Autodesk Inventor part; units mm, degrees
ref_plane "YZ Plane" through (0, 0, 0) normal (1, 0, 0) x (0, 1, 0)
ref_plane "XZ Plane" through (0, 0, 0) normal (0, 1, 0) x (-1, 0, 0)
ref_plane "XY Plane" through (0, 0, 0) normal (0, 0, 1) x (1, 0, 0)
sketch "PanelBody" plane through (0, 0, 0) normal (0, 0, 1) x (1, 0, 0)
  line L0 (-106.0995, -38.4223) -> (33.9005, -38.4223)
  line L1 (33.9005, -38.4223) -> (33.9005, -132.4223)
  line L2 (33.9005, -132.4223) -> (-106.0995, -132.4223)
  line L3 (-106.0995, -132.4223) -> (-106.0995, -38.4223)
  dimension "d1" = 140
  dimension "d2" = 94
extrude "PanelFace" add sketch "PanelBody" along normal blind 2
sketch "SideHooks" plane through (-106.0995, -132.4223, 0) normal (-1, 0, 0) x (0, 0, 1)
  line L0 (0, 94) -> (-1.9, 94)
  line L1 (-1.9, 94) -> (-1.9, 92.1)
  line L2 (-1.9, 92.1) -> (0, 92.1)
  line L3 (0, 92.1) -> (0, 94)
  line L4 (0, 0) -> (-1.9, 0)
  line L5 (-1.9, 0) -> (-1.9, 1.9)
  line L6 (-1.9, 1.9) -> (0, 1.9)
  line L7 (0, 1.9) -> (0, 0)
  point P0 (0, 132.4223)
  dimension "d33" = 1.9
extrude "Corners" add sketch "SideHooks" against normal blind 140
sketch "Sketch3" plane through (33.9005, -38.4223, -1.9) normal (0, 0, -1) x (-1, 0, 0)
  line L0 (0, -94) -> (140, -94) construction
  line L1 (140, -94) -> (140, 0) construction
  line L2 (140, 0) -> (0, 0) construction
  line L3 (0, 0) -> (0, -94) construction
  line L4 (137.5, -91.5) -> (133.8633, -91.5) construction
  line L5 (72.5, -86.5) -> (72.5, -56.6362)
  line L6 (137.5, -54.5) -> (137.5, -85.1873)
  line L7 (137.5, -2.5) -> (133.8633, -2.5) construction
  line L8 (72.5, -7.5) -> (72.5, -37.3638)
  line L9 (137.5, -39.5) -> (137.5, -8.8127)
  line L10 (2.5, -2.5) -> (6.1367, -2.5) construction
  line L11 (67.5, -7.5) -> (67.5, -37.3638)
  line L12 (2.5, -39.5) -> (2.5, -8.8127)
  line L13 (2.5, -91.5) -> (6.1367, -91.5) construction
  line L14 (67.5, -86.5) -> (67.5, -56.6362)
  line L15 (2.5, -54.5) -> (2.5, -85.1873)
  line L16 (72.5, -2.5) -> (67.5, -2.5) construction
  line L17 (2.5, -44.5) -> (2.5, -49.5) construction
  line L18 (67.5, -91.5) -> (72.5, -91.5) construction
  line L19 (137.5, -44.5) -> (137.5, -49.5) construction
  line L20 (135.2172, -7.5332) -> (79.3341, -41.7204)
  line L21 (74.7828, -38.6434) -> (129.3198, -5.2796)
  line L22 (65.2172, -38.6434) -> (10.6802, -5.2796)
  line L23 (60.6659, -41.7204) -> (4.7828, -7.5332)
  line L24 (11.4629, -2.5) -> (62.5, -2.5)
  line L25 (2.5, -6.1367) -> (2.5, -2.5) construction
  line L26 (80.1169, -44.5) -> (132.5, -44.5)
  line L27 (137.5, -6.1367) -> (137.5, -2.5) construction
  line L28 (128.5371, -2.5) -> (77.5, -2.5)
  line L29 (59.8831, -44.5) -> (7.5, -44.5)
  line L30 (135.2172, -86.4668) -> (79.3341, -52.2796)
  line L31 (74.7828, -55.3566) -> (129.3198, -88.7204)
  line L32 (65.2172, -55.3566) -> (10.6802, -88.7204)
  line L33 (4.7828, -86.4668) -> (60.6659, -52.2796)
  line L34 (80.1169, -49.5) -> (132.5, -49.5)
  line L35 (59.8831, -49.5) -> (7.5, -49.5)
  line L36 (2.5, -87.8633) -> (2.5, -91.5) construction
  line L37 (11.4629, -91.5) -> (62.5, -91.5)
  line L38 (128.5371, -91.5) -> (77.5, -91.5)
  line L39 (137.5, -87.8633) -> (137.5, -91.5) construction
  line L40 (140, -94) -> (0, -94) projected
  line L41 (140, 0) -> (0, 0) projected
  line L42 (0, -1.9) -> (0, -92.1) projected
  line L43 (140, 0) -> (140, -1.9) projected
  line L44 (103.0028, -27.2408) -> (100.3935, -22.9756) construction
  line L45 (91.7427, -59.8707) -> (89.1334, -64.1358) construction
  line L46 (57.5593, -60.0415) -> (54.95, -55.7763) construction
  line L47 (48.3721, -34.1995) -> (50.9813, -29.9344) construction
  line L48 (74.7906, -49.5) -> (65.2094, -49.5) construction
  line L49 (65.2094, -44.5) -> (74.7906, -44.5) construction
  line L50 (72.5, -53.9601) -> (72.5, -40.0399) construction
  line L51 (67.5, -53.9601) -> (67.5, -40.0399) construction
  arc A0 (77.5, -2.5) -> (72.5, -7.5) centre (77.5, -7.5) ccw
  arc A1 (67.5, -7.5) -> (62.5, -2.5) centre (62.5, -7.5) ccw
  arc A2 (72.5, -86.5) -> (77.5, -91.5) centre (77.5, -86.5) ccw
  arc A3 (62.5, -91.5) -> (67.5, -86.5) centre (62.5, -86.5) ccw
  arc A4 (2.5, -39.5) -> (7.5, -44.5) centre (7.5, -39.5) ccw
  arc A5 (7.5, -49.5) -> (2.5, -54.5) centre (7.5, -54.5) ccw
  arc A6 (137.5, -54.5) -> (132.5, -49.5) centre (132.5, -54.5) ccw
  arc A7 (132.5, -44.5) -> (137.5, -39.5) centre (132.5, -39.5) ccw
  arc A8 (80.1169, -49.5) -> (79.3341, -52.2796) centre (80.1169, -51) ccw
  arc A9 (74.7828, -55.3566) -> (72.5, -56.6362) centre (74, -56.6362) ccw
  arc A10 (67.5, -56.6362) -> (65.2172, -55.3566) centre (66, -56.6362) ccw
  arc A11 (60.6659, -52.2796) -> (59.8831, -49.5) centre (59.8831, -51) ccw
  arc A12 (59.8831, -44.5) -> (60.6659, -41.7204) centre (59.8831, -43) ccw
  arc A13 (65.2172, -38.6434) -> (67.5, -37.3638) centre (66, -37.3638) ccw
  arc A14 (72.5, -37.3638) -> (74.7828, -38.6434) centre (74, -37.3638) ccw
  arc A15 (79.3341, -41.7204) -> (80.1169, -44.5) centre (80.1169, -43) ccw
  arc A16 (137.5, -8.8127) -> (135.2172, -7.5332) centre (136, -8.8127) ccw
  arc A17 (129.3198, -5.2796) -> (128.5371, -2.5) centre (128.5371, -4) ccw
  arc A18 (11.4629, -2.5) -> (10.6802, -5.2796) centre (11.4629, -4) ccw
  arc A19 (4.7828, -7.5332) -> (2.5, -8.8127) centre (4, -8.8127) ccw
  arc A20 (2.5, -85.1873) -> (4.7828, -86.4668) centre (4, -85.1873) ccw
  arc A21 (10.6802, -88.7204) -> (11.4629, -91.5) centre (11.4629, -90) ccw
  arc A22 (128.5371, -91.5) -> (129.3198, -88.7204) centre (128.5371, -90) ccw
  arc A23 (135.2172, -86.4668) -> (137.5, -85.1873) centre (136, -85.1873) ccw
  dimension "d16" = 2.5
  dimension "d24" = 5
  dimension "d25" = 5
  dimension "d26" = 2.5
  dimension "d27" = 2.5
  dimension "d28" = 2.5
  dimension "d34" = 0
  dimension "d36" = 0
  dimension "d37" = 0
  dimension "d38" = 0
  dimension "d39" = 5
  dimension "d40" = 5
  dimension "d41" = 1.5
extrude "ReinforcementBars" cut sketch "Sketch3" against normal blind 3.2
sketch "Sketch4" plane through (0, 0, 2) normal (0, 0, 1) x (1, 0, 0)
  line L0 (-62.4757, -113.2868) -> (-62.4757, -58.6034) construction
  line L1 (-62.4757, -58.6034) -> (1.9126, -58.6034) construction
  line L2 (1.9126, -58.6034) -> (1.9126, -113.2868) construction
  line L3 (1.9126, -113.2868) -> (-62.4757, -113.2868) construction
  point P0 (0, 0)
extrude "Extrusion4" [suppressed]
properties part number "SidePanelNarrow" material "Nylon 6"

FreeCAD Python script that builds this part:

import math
import FreeCAD as App
import Part
import Sketcher

V = App.Vector
Q = App.Units.Quantity


def add_polygon(sketch, points):
    """Adds a closed chain of lines whose ends are joined by coincident constraints."""
    first, n = sketch.GeometryCount, len(points)
    for a, b in zip(points, points[1:] + points[:1]):
        sketch.addGeometry(Part.LineSegment(App.Vector(*a, 0), App.Vector(*b, 0)), False)
    for i in range(n):
        sketch.addConstraint(Sketcher.Constraint("Coincident", first + i, 2, first + (i + 1) % n, 1))

doc = App.newDocument("Part")
body = doc.addObject("PartDesign::Body", "Body")

sketch1 = body.newObject("Sketcher::SketchObject", "Sketch")
sketch1.AttachmentSupport = (doc.getObject("XY_Plane"), [""])
sketch1.MapMode = "FlatFace"
add_polygon(sketch1, [(33.9005, -38.4223), (-106.0995, -38.4223), (-106.0995, -132.4223), (33.9005, -132.4223)])
sketch1.addConstraint([
    Sketcher.Constraint("Horizontal", 0),
    Sketcher.Constraint("Vertical", 1),
    Sketcher.Constraint("Horizontal", 2),
    Sketcher.Constraint("Vertical", 3),
    Sketcher.Constraint("DistanceX", 0, 2, 0, 1, Q("140 mm")),
    Sketcher.Constraint("DistanceY", 1, 2, 1, 1, Q("94 mm")),
    Sketcher.Constraint("DistanceX", 0, 2, -1, 1, Q("106.0995 mm")),
    Sketcher.Constraint("DistanceY", 0, 2, -1, 1, Q("38.4223 mm")),
])
pad1 = body.newObject("PartDesign::Pad", "Pad")
pad1.Profile = sketch1
pad1.Length = 2

sketch2 = body.newObject("Sketcher::SketchObject", "Sketch001")
sketch2.AttachmentSupport = (doc.getObject("YZ_Plane"), [""])
sketch2.MapMode = "FlatFace"
sketch2.AttachmentOffset = App.Placement(V(0, 0, -106.0995), App.Rotation())
add_polygon(sketch2, [(-40.3223, 0), (-38.4223, 0), (-38.4223, -1.9), (-40.3223, -1.9)])
add_polygon(sketch2, [(-132.4223, -1.9), (-132.4223, 0), (-130.5223, 0), (-130.5223, -1.9)])
sketch2.addConstraint([
    Sketcher.Constraint("Horizontal", 0),
    Sketcher.Constraint("Vertical", 1),
    Sketcher.Constraint("Horizontal", 2),
    Sketcher.Constraint("Vertical", 3),
    Sketcher.Constraint("Vertical", 4),
    Sketcher.Constraint("Horizontal", 5),
    Sketcher.Constraint("Vertical", 6),
    Sketcher.Constraint("Horizontal", 7),
    Sketcher.Constraint("PointOnObject", 0, 2, -1),
    Sketcher.Constraint("PointOnObject", 4, 2, -1),
    Sketcher.Constraint("Horizontal", 2, 2, 6, 2),
    Sketcher.Constraint("Equal", 2, 5),
    Sketcher.Constraint("Equal", 7, 1),
    Sketcher.Constraint("DistanceX", 0, 1, 0, 2, Q("1.9 mm")),
    Sketcher.Constraint("DistanceX", 4, 2, 0, 2, Q("94 mm")),
    Sketcher.Constraint("DistanceX", 0, 2, -1, 1, Q("38.4223 mm")),
])
pad2 = body.newObject("PartDesign::Pad", "Pad001")
pad2.Profile = sketch2
pad2.Length = 140

sketch3 = body.newObject("Sketcher::SketchObject", "Sketch002")
sketch3.AttachmentSupport = (doc.getObject("XY_Plane"), [""])
sketch3.MapMode = "FlatFace"
sketch3.AttachmentOffset = App.Placement(V(0, 0, -1.9), App.Rotation())
sketch3.addGeometry([
    Part.LineSegment(V(-38.5995, -95.0585, 0), V(-38.5995, -124.9223, 0)),
    Part.ArcOfCircle(Part.Circle(V(-43.5995, -124.9223, 0), V(0, 0, 1), 5), math.radians(-90), math.radians(0)),
    Part.LineSegment(V(-43.5995, -129.9223, 0), V(-94.6366, -129.9223, 0)),
    Part.ArcOfCircle(Part.Circle(V(-94.6366, -128.4223, 0), V(0, 0, 1), 1.5), math.radians(121.453105), math.radians(270)),
    Part.LineSegment(V(-95.4193, -127.1427, 0), V(-40.8823, -93.7789, 0)),
    Part.ArcOfCircle(Part.Circle(V(-40.0995, -95.0585, 0), V(0, 0, 1), 1.500051), math.radians(0), math.radians(121.456363)),
    Part.LineSegment(V(-103.5995, -123.6096, 0), V(-103.5995, -92.9223, 0)),
    Part.ArcOfCircle(Part.Circle(V(-98.5995, -92.9223, 0), V(0, 0, 1), 5), math.radians(90), math.radians(180)),
    Part.LineSegment(V(-98.5995, -87.9223, 0), V(-46.2164, -87.9223, 0)),
    Part.ArcOfCircle(Part.Circle(V(-46.2164, -89.4223, 0), V(0, 0, 1), 1.5), math.radians(-58.543637), math.radians(90)),
    Part.LineSegment(V(-45.4336, -90.7019, 0), V(-101.3167, -124.8891, 0)),
    Part.ArcOfCircle(Part.Circle(V(-102.0995, -123.6096, 0), V(0, 0, 1), 1.499965), math.radians(180), math.radians(301.458357)),
    Part.ArcOfCircle(Part.Circle(V(-43.5995, -45.9223, 0), V(0, 0, 1), 5), math.radians(0), math.radians(90)),
    Part.LineSegment(V(-38.5995, -45.9223, 0), V(-38.5995, -75.7861, 0)),
    Part.ArcOfCircle(Part.Circle(V(-40.0995, -75.7861, 0), V(0, 0, 1), 1.5), math.radians(-121.456363), math.radians(0)),
    Part.LineSegment(V(-40.8823, -77.0657, 0), V(-95.4193, -43.7019, 0)),
    Part.ArcOfCircle(Part.Circle(V(-94.6366, -42.4223, 0), V(0, 0, 1), 1.499998), math.radians(90), math.radians(238.546895)),
    Part.LineSegment(V(-94.6366, -40.9223, 0), V(-43.5995, -40.9223, 0)),
    Part.ArcOfCircle(Part.Circle(V(-98.5995, -77.9223, 0), V(0, 0, 1), 5), math.radians(180), math.radians(270)),
    Part.LineSegment(V(-103.5995, -77.9223, 0), V(-103.5995, -47.235, 0)),
    Part.ArcOfCircle(Part.Circle(V(-102.0995, -47.235, 0), V(0, 0, 1), 1.5), math.radians(58.541643), math.radians(180)),
    Part.LineSegment(V(-101.3167, -45.9555, 0), V(-45.4336, -80.1427, 0)),
    Part.ArcOfCircle(Part.Circle(V(-46.2164, -81.4223, 0), V(0, 0, 1), 1.500051), math.radians(-90), math.radians(58.543637)),
    Part.LineSegment(V(-46.2164, -82.9223, 0), V(-98.5995, -82.9223, 0)),
    Part.LineSegment(V(-33.5995, -75.7861, 0), V(-33.5995, -45.9223, 0)),
    Part.ArcOfCircle(Part.Circle(V(-28.5995, -45.9223, 0), V(0, 0, 1), 5), math.radians(90), math.radians(180)),
    Part.LineSegment(V(-28.5995, -40.9223, 0), V(22.4376, -40.9223, 0)),
    Part.ArcOfCircle(Part.Circle(V(22.4376, -42.4223, 0), V(0, 0, 1), 1.5), math.radians(-58.546895), math.radians(90)),
    Part.LineSegment(V(23.2203, -43.7019, 0), V(-31.3167, -77.0657, 0)),
    Part.ArcOfCircle(Part.Circle(V(-32.0995, -75.7861, 0), V(0, 0, 1), 1.500051), math.radians(180), math.radians(301.456363)),
    Part.LineSegment(V(31.4005, -47.235, 0), V(31.4005, -77.9223, 0)),
    Part.ArcOfCircle(Part.Circle(V(26.4005, -77.9223, 0), V(0, 0, 1), 5), math.radians(-90), math.radians(0)),
    Part.LineSegment(V(26.4005, -82.9223, 0), V(-25.9826, -82.9223, 0)),
    Part.ArcOfCircle(Part.Circle(V(-25.9826, -81.4223, 0), V(0, 0, 1), 1.5), math.radians(121.456363), math.radians(270)),
    Part.LineSegment(V(-26.7654, -80.1427, 0), V(29.1177, -45.9555, 0)),
    Part.ArcOfCircle(Part.Circle(V(29.9005, -47.235, 0), V(0, 0, 1), 1.499965), math.radians(0), math.radians(121.458357)),
    Part.ArcOfCircle(Part.Circle(V(-28.5995, -124.9223, 0), V(0, 0, 1), 5), math.radians(180), math.radians(270)),
    Part.LineSegment(V(-33.5995, -124.9223, 0), V(-33.5995, -95.0585, 0)),
    Part.ArcOfCircle(Part.Circle(V(-32.0995, -95.0585, 0), V(0, 0, 1), 1.5), math.radians(58.543637), math.radians(180)),
    Part.LineSegment(V(-31.3167, -93.7789, 0), V(23.2203, -127.1427, 0)),
    Part.ArcOfCircle(Part.Circle(V(22.4376, -128.4223, 0), V(0, 0, 1), 1.499998), math.radians(-90), math.radians(58.546895)),
    Part.LineSegment(V(22.4376, -129.9223, 0), V(-28.5995, -129.9223, 0)),
    Part.ArcOfCircle(Part.Circle(V(26.4005, -92.9223, 0), V(0, 0, 1), 5), math.radians(0), math.radians(90)),
    Part.LineSegment(V(31.4005, -92.9223, 0), V(31.4005, -123.6096, 0)),
    Part.ArcOfCircle(Part.Circle(V(29.9005, -123.6096, 0), V(0, 0, 1), 1.5), math.radians(-121.458357), math.radians(0)),
    Part.LineSegment(V(29.1177, -124.8891, 0), V(-26.7654, -90.7019, 0)),
    Part.ArcOfCircle(Part.Circle(V(-25.9826, -89.4223, 0), V(0, 0, 1), 1.500051), math.radians(90), math.radians(238.543637)),
    Part.LineSegment(V(-25.9826, -87.9223, 0), V(26.4005, -87.9223, 0)),
], False)
sketch3.addConstraint([
    Sketcher.Constraint("Tangent", 0, 2, 1, 2),
    Sketcher.Constraint("Tangent", 1, 1, 2, 1),
    Sketcher.Constraint("Tangent", 2, 2, 3, 2),
    Sketcher.Constraint("Tangent", 3, 1, 4, 1),
    Sketcher.Constraint("Tangent", 4, 2, 5, 2),
    Sketcher.Constraint("Tangent", 5, 1, 0, 1),
    Sketcher.Constraint("Tangent", 6, 2, 7, 2),
    Sketcher.Constraint("Tangent", 7, 1, 8, 1),
    Sketcher.Constraint("Tangent", 8, 2, 9, 2),
    Sketcher.Constraint("Tangent", 9, 1, 10, 1),
    Sketcher.Constraint("Tangent", 10, 2, 11, 2),
    Sketcher.Constraint("Tangent", 11, 1, 6, 1),
    Sketcher.Constraint("Tangent", 12, 1, 13, 1),
    Sketcher.Constraint("Tangent", 13, 2, 14, 2),
    Sketcher.Constraint("Tangent", 14, 1, 15, 1),
    Sketcher.Constraint("Tangent", 15, 2, 16, 2),
    Sketcher.Constraint("Tangent", 16, 1, 17, 1),
    Sketcher.Constraint("Tangent", 17, 2, 12, 2),
    Sketcher.Constraint("Tangent", 18, 1, 19, 1),
    Sketcher.Constraint("Tangent", 19, 2, 20, 2),
    Sketcher.Constraint("Tangent", 20, 1, 21, 1),
    Sketcher.Constraint("Tangent", 21, 2, 22, 2),
    Sketcher.Constraint("Tangent", 22, 1, 23, 1),
    Sketcher.Constraint("Tangent", 23, 2, 18, 2),
    Sketcher.Constraint("Tangent", 24, 2, 25, 2),
    Sketcher.Constraint("Tangent", 25, 1, 26, 1),
    Sketcher.Constraint("Tangent", 26, 2, 27, 2),
    Sketcher.Constraint("Tangent", 27, 1, 28, 1),
    Sketcher.Constraint("Tangent", 28, 2, 29, 2),
    Sketcher.Constraint("Tangent", 29, 1, 24, 1),
    Sketcher.Constraint("Tangent", 30, 2, 31, 2),
    Sketcher.Constraint("Tangent", 31, 1, 32, 1),
    Sketcher.Constraint("Tangent", 32, 2, 33, 2),
    Sketcher.Constraint("Tangent", 33, 1, 34, 1),
    Sketcher.Constraint("Tangent", 34, 2, 35, 2),
    Sketcher.Constraint("Tangent", 35, 1, 30, 1),
    Sketcher.Constraint("Tangent", 36, 1, 37, 1),
    Sketcher.Constraint("Tangent", 37, 2, 38, 2),
    Sketcher.Constraint("Tangent", 38, 1, 39, 1),
    Sketcher.Constraint("Tangent", 39, 2, 40, 2),
    Sketcher.Constraint("Tangent", 40, 1, 41, 1),
    Sketcher.Constraint("Tangent", 41, 2, 36, 2),
    Sketcher.Constraint("Tangent", 42, 1, 43, 1),
    Sketcher.Constraint("Tangent", 43, 2, 44, 2),
    Sketcher.Constraint("Tangent", 44, 1, 45, 1),
    Sketcher.Constraint("Tangent", 45, 2, 46, 2),
    Sketcher.Constraint("Tangent", 46, 1, 47, 1),
    Sketcher.Constraint("Tangent", 47, 2, 42, 2),
    Sketcher.Constraint("Vertical", 0),
    Sketcher.Constraint("Horizontal", 2),
    Sketcher.Constraint("Vertical", 6),
    Sketcher.Constraint("Horizontal", 8),
    Sketcher.Constraint("Vertical", 13),
    Sketcher.Constraint("Horizontal", 17),
    Sketcher.Constraint("Vertical", 19),
    Sketcher.Constraint("Horizontal", 23),
    Sketcher.Constraint("Vertical", 24),
    Sketcher.Constraint("Horizontal", 26),
    Sketcher.Constraint("Vertical", 30),
    Sketcher.Constraint("Horizontal", 32),
    Sketcher.Constraint("Vertical", 37),
    Sketcher.Constraint("Horizontal", 41),
    Sketcher.Constraint("Vertical", 43),
    Sketcher.Constraint("Horizontal", 47),
    Sketcher.Constraint("Equal", 3, 5),
    Sketcher.Constraint("Equal", 1, 7),
    Sketcher.Constraint("Equal", 5, 9),
    Sketcher.Constraint("Equal", 9, 11),
    Sketcher.Constraint("Equal", 7, 12),
    Sketcher.Constraint("Equal", 11, 14),
    Sketcher.Constraint("Equal", 14, 16),
    Sketcher.Constraint("Equal", 12, 18),
    Sketcher.Constraint("Equal", 16, 20),
    Sketcher.Constraint("Equal", 20, 22),
    Sketcher.Constraint("Equal", 18, 25),
    Sketcher.Constraint("Equal", 22, 27),
    Sketcher.Constraint("Equal", 27, 29),
    Sketcher.Constraint("Equal", 25, 31),
    Sketcher.Constraint("Equal", 29, 33),
    Sketcher.Constraint("Equal", 33, 35),
    Sketcher.Constraint("Equal", 31, 36),
    Sketcher.Constraint("Equal", 35, 38),
    Sketcher.Constraint("Equal", 38, 40),
    Sketcher.Constraint("Equal", 36, 42),
    Sketcher.Constraint("Equal", 40, 44),
    Sketcher.Constraint("Equal", 44, 46),
    Sketcher.Constraint("Parallel", 4, 10),
    Sketcher.Constraint("Parallel", 15, 21),
    Sketcher.Constraint("Parallel", 10, 28),
    Sketcher.Constraint("Parallel", 28, 34),
    Sketcher.Constraint("Parallel", 21, 39),
    Sketcher.Constraint("Parallel", 39, 45),
    Sketcher.Constraint("Horizontal", 12, 3, 25, 3),
    Sketcher.Constraint("Horizontal", 14, 3, 29, 3),
    Sketcher.Constraint("Horizontal", 18, 3, 31, 3),
    Sketcher.Constraint("Horizontal", 20, 3, 35, 3),
    Sketcher.Constraint("Horizontal", 1, 3, 36, 3),
    Sketcher.Constraint("Horizontal", 5, 3, 38, 3),
    Sketcher.Constraint("Horizontal", 7, 3, 42, 3),
    Sketcher.Constraint("Horizontal", 11, 3, 44, 3),
    Sketcher.Constraint("Vertical", 1, 3, 12, 3),
    Sketcher.Constraint("Vertical", 3, 3, 16, 3),
    Sketcher.Constraint("Vertical", 7, 3, 18, 3),
    Sketcher.Constraint("Vertical", 9, 3, 22, 3),
    Sketcher.Constraint("Vertical", 25, 3, 36, 3),
    Sketcher.Constraint("Vertical", 27, 3, 40, 3),
    Sketcher.Constraint("Vertical", 31, 3, 42, 3),
    Sketcher.Constraint("Radius", 1, Q("5 mm")),
    Sketcher.Constraint("Radius", 3, Q("1.5 mm")),
    Sketcher.Constraint("DistanceX", 2, 2, 2, 1, Q("51.037 mm")),
    Sketcher.Constraint("DistanceX", 8, 1, 8, 2, Q("52.383 mm")),
    Sketcher.Constraint("Distance", 4, Q("63.933 mm")),
    Sketcher.Constraint("DistanceY", 14, 3, -1, 1, Q("75.786 mm")),
    Sketcher.Constraint("DistanceY", 20, 3, -1, 1, Q("47.235 mm")),
    Sketcher.Constraint("DistanceY", 4, 2, -1, 1, Q("93.779 mm")),
    Sketcher.Constraint("DistanceY", 10, 2, -1, 1, Q("124.889 mm")),
    Sketcher.Constraint("DistanceX", 1, 3, -1, 1, Q("43.5995 mm")),
    Sketcher.Constraint("DistanceX", 7, 3, -1, 1, Q("98.5995 mm")),
    Sketcher.Constraint("DistanceX", 25, 3, -1, 1, Q("28.5995 mm")),
    Sketcher.Constraint("DistanceX", -1, 1, 31, 3, Q("26.4005 mm")),
])
pocket1 = body.newObject("PartDesign::Pocket", "Pocket")
pocket1.Profile = sketch3
pocket1.Length = 3.2
pocket1.Reversed = True

doc.recompute()
